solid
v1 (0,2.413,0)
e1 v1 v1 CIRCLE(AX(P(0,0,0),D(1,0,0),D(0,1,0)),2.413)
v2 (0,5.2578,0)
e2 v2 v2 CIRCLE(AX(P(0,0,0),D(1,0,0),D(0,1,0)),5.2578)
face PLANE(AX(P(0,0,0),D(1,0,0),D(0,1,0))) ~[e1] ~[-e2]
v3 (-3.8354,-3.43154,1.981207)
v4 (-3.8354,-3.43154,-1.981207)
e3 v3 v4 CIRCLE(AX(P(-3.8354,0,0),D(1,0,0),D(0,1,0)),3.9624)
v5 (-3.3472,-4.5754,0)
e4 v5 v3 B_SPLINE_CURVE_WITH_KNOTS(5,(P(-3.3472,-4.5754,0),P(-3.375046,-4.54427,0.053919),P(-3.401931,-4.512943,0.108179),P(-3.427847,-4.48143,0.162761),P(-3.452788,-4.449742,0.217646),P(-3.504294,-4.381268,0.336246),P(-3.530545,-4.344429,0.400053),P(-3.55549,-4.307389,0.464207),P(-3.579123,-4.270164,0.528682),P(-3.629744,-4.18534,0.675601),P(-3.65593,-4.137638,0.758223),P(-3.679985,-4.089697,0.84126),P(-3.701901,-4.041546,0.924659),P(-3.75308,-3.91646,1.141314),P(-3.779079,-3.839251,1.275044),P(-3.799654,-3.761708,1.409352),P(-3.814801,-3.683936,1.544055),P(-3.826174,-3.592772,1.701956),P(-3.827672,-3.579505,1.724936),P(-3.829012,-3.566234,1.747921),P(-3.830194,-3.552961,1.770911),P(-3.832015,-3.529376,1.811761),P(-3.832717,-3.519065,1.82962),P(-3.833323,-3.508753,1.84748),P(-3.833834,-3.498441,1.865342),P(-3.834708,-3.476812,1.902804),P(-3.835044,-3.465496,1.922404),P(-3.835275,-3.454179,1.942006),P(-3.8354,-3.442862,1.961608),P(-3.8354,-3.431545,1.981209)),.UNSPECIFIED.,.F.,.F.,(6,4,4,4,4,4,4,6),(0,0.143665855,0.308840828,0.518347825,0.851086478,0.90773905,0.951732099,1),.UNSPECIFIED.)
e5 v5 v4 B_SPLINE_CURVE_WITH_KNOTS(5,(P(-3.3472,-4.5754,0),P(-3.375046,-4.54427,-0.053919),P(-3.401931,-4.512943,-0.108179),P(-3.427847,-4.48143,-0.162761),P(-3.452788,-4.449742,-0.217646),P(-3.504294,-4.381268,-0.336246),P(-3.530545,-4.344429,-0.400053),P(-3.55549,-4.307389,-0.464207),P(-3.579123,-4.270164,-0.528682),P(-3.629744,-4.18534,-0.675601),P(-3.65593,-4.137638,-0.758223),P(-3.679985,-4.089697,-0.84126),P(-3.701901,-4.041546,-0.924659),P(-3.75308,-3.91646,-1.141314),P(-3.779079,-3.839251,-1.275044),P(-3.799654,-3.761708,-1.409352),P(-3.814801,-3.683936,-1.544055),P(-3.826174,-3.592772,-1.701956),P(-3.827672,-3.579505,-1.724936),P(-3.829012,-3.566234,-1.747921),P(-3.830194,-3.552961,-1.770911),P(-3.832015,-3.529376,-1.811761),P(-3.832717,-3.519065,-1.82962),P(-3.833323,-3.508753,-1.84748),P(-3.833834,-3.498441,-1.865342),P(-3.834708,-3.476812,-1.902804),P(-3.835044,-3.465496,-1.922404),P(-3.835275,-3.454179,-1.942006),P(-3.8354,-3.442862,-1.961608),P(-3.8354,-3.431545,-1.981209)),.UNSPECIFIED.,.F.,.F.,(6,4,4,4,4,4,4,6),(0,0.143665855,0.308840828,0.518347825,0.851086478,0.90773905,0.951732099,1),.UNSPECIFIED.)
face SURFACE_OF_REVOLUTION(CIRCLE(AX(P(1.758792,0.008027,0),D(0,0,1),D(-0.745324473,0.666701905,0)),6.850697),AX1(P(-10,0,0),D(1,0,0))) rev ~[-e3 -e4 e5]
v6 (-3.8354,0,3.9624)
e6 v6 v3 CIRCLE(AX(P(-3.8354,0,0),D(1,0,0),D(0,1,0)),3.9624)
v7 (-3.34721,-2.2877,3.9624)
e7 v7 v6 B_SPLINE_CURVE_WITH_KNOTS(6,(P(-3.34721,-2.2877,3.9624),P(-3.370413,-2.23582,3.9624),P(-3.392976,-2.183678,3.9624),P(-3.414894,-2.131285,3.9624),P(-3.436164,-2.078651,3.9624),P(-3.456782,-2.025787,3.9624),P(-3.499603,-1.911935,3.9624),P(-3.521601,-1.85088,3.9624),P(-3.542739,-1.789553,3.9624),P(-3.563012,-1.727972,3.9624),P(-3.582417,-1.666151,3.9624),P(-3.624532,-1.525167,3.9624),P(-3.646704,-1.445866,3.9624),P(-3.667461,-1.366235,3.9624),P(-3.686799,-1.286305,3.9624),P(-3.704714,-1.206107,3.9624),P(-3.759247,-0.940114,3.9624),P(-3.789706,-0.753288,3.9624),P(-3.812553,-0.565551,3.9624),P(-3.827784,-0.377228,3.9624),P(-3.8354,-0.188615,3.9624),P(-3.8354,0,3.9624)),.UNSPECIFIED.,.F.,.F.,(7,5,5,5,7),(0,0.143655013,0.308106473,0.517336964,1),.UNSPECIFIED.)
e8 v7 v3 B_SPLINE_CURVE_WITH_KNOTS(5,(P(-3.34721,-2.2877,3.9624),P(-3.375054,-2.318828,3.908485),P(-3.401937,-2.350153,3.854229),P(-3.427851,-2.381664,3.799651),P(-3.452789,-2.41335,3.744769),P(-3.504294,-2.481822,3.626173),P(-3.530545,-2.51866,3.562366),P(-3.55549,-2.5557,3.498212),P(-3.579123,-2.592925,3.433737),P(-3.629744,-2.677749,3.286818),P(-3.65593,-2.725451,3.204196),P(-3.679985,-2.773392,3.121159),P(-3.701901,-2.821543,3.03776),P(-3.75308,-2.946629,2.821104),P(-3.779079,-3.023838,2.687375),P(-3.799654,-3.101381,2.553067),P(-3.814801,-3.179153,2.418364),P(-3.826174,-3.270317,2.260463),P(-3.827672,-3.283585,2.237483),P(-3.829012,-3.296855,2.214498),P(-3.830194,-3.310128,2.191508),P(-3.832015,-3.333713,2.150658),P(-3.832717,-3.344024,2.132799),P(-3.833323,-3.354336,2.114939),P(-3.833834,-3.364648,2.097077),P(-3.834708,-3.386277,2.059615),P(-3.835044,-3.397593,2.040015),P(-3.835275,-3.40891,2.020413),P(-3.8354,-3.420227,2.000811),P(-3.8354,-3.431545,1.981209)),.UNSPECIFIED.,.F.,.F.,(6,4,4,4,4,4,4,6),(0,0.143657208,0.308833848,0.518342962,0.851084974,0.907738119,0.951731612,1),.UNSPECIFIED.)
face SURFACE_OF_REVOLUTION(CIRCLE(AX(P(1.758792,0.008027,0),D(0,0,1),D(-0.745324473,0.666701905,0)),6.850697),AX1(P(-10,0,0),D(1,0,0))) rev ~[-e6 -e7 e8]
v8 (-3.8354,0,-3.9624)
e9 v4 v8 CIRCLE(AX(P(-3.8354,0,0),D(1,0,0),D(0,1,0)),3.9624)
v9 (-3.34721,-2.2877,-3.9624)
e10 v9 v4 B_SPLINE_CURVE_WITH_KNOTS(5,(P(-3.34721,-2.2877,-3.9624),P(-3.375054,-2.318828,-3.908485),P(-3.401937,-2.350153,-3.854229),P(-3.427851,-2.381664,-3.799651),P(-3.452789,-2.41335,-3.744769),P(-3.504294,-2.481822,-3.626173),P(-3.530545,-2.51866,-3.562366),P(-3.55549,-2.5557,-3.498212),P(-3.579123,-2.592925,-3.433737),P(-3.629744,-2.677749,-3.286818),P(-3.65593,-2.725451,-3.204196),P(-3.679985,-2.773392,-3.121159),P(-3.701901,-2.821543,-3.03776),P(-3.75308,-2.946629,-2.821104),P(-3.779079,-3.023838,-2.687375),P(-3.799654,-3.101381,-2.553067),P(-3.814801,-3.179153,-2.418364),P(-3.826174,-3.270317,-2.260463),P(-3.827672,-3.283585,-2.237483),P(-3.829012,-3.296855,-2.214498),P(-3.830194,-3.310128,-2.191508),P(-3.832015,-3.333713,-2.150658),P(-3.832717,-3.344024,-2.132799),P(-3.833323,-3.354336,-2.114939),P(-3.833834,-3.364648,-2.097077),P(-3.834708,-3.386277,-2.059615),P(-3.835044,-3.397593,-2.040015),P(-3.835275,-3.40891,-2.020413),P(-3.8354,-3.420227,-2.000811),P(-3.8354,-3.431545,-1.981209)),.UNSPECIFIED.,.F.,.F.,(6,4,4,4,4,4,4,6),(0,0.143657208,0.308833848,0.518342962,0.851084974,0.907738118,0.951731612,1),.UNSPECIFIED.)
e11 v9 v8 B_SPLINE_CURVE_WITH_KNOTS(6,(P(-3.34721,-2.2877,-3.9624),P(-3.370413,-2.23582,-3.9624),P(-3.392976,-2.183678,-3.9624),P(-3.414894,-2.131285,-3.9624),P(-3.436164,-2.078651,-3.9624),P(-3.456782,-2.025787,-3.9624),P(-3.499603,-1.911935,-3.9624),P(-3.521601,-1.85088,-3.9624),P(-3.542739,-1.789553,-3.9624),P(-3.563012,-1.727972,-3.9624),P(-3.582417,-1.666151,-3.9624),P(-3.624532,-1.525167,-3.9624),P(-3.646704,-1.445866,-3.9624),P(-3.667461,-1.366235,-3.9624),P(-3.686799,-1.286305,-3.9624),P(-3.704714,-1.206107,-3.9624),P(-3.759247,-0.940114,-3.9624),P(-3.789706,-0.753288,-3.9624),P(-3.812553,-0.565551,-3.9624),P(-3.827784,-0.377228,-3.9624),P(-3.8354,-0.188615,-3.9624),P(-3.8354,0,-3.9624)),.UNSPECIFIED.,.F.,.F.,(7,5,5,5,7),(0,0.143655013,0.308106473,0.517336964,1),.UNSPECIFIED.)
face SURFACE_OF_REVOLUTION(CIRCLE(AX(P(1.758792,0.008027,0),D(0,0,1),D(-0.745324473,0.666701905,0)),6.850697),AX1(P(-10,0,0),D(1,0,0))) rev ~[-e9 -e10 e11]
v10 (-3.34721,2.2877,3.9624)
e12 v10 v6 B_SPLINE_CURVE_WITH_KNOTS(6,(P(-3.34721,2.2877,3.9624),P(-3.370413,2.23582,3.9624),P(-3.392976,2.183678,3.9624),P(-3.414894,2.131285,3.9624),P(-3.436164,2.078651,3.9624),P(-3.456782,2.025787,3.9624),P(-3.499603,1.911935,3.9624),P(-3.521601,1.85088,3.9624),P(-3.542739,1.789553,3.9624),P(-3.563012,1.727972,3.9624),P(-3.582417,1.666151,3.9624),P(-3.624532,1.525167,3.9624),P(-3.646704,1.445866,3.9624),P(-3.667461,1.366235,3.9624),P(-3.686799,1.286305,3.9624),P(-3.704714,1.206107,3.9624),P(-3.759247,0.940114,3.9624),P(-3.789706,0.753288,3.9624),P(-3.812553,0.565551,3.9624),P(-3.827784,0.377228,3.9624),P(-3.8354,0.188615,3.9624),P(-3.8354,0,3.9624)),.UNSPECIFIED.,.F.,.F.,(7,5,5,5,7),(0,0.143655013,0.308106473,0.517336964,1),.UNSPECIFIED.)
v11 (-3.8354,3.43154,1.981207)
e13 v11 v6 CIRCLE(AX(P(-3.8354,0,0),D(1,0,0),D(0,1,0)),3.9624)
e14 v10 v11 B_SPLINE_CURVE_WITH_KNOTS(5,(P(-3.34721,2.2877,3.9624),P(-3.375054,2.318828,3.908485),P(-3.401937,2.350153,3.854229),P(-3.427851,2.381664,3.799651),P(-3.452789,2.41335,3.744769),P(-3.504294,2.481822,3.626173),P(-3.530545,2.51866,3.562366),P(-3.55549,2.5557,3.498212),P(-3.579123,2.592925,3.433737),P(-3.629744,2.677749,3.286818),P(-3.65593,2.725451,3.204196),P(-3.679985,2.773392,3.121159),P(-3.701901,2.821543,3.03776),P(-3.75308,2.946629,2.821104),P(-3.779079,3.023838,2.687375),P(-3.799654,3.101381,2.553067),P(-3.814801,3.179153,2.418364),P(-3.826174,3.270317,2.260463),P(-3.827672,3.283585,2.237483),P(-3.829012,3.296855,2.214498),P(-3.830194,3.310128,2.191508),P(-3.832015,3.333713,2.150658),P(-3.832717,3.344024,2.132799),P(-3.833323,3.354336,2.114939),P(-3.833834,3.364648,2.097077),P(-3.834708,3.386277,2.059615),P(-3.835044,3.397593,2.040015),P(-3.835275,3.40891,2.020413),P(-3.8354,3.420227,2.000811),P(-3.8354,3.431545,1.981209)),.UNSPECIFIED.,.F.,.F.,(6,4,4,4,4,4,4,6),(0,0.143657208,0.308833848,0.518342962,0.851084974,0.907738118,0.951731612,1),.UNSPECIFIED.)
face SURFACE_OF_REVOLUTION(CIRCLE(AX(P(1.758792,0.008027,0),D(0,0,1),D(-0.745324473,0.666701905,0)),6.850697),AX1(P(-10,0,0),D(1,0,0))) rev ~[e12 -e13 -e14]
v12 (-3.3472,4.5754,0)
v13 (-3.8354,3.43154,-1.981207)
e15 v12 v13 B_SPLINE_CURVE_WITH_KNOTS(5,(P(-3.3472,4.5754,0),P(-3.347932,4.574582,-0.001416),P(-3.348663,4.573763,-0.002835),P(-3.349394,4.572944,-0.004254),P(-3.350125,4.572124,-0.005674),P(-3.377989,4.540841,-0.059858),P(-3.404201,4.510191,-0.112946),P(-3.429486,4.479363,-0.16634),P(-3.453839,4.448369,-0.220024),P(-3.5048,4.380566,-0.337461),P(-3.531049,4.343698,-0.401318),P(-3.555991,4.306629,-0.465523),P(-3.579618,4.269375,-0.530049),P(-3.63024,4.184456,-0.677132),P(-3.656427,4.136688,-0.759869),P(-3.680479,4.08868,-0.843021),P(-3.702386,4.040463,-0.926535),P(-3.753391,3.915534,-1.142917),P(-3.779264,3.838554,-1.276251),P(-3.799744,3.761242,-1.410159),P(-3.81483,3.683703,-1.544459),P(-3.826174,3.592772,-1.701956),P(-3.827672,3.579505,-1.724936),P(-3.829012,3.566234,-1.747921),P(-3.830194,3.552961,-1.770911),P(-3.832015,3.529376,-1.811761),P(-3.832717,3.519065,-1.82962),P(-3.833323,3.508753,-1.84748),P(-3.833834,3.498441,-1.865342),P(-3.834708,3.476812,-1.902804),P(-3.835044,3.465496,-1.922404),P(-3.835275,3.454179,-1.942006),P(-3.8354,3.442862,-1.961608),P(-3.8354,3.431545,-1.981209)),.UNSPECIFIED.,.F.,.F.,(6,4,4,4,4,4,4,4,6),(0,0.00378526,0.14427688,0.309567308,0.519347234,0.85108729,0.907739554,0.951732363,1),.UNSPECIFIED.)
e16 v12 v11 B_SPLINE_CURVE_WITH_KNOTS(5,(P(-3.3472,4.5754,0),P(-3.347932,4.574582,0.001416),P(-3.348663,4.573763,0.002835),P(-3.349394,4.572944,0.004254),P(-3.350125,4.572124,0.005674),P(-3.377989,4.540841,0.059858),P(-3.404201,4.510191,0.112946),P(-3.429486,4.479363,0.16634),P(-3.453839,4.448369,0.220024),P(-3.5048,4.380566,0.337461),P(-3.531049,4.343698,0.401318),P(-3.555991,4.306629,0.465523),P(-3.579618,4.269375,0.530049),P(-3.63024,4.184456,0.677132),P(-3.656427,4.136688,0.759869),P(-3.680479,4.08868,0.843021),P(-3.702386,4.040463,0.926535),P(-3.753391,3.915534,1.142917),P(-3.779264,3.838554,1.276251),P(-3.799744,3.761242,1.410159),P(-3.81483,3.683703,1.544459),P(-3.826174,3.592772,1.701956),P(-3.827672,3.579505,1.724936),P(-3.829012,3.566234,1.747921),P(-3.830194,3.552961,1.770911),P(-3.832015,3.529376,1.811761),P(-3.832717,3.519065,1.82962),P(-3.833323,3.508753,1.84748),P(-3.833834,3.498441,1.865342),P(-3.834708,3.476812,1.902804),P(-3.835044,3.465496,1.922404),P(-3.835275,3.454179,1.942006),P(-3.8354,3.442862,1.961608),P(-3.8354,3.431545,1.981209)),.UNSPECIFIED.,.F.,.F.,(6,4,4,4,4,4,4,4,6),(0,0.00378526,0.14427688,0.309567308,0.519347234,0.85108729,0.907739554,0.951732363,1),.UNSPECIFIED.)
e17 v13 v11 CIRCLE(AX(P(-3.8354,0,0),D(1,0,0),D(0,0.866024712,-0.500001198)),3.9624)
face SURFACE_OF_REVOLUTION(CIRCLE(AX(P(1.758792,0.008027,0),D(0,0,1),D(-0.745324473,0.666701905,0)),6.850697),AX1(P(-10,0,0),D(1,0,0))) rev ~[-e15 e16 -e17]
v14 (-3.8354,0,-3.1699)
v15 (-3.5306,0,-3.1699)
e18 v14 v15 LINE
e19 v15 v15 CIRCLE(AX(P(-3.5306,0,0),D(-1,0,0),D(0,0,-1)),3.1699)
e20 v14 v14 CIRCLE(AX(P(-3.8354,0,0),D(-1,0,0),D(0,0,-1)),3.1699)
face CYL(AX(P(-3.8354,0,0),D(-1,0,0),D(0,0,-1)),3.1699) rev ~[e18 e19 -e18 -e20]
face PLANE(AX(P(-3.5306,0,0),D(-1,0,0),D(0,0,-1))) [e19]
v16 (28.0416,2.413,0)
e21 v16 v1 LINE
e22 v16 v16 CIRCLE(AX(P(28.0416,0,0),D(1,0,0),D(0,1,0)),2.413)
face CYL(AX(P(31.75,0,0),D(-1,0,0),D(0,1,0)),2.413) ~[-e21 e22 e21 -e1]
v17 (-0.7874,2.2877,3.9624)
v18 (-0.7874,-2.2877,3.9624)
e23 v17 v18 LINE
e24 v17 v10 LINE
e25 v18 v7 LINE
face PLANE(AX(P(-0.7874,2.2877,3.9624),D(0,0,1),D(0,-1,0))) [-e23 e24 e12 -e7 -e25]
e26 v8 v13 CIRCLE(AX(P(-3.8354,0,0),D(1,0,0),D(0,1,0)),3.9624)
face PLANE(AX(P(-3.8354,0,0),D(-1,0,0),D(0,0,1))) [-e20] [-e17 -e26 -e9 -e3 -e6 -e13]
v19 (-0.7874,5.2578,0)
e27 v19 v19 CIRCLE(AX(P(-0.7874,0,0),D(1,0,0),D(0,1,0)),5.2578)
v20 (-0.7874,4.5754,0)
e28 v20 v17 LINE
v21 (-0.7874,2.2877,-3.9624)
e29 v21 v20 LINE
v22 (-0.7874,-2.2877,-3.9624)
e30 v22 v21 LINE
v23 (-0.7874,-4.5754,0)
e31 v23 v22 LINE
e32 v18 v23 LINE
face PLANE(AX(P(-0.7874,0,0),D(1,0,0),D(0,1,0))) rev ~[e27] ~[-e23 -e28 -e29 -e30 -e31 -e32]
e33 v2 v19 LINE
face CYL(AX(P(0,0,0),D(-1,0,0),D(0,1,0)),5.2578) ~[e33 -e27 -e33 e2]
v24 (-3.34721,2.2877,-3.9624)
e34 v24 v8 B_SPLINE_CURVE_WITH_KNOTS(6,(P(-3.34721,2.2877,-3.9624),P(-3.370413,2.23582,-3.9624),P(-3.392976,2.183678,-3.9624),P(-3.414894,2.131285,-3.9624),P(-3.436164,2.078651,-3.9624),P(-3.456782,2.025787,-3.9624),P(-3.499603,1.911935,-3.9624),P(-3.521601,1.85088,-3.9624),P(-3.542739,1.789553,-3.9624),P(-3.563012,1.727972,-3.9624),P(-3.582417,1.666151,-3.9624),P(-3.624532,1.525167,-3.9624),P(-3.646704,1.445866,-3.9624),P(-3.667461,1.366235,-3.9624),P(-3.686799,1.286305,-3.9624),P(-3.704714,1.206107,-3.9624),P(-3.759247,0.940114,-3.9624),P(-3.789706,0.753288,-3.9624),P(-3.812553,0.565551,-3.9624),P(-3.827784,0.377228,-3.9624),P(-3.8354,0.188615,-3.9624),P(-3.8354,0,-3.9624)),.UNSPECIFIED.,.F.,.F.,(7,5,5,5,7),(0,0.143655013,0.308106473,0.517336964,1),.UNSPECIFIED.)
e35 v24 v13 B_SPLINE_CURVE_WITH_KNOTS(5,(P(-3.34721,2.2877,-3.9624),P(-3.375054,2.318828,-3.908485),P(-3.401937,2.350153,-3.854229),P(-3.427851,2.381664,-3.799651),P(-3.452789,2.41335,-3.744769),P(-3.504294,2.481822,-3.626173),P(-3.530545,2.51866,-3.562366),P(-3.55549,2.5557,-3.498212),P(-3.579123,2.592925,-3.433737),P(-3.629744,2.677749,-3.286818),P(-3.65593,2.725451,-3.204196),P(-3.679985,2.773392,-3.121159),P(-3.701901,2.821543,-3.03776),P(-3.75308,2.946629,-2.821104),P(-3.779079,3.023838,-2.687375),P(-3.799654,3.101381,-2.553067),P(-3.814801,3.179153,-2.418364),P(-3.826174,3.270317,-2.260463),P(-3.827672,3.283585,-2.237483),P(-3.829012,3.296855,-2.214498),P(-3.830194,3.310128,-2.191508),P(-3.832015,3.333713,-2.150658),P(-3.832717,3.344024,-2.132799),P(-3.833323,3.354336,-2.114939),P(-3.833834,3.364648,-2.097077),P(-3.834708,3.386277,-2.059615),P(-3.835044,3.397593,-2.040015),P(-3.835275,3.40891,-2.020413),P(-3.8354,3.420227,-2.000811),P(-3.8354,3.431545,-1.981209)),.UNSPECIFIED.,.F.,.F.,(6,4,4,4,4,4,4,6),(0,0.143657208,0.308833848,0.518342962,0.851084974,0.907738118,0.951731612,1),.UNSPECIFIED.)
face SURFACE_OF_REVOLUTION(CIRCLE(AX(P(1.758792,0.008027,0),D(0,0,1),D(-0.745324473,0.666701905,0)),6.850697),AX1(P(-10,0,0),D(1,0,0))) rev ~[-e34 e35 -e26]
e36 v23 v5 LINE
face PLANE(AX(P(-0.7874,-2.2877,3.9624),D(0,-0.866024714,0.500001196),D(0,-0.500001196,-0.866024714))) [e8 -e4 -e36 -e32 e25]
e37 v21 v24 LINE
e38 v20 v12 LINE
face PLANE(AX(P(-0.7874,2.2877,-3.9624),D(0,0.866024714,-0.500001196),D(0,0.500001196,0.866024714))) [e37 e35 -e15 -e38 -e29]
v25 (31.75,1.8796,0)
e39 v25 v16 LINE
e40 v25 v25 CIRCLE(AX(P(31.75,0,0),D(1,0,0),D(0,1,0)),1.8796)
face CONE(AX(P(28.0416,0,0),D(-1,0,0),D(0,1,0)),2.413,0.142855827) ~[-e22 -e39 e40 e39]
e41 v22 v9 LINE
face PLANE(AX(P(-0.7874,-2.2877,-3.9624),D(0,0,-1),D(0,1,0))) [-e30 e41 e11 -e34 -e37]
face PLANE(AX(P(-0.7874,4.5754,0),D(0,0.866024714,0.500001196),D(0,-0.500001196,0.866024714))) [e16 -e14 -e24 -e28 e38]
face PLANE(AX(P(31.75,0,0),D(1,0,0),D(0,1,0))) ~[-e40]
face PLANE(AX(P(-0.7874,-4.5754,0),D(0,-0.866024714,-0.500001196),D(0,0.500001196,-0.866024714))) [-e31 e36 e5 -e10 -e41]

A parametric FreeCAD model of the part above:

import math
import FreeCAD as App
import Part
import Sketcher
from FreeCAD import Vector
Q = App.Units.Quantity


def edges_at(feature, points):
    """Names of the edges that pass closest to the given points."""
    edges = feature.Shape.Edges
    near = lambda p: min(range(len(edges)), key=lambda i: edges[i].distToShape(Part.Vertex(*p))[0])
    return sorted({f"Edge{near(p) + 1}" for p in points})


def add_polygon(sketch, points):
    """Adds a closed chain of lines whose ends are joined by coincident constraints."""
    first, n = sketch.GeometryCount, len(points)
    for a, b in zip(points, points[1:] + points[:1]):
        sketch.addGeometry(Part.LineSegment(App.Vector(*a, 0), App.Vector(*b, 0)), False)
    for i in range(n):
        sketch.addConstraint(Sketcher.Constraint("Coincident", first + i, 2, first + (i + 1) % n, 1))

doc = App.newDocument("Part")
body = doc.addObject("PartDesign::Body", "Body")

# Sketch on XY plane
sketch1 = body.newObject("Sketcher::SketchObject", "Sketch")
sketch1.AttachmentSupport = (doc.getObject("XY_Plane"), [""])
sketch1.MapMode = "FlatFace"
add_polygon(sketch1, [(0, 5.3), (-0.8, 5.3), (-0.8, 0), (31.8, 0), (31.8, 2.4), (0, 2.4)])  # lines 0-5
sketch1.addConstraint([
    Sketcher.Constraint("Horizontal", 0),
    Sketcher.Constraint("Vertical", 1),
    Sketcher.Constraint("Horizontal", 2),
    Sketcher.Constraint("Vertical", 3),
    Sketcher.Constraint("Horizontal", 4),
    Sketcher.Constraint("Vertical", 5),
    Sketcher.Constraint("PointOnObject", 1, 2, -1),
    Sketcher.Constraint("PointOnObject", 4, 2, -2),
    Sketcher.Constraint("DistanceX", 4, 2, 4, 1, Q("1.25 in")),
    Sketcher.Constraint("DistanceX", 0, 2, 0, 1, Q("0.031 in")),
    Sketcher.Constraint("DistanceY", 1, 2, 1, 1, Q("0.207 in")),
    Sketcher.Constraint("DistanceY", 3, 1, 3, 2, Q("0.095 in")),
])
revolution = body.newObject("PartDesign::Revolution", "Revolution")
revolution.Profile = sketch1
revolution.ReferenceAxis = (sketch1, ["H_Axis"])
revolution.Angle = 360

# Sketch on YZ plane
sketch2 = body.newObject("Sketcher::SketchObject", "Sketch001")
sketch2.AttachmentSupport = (doc.getObject("YZ_Plane"), [""])
sketch2.MapMode = "FlatFace"
sketch2.AttachmentOffset = App.Placement(Vector(0, 0, -0.031 * 25.4), App.Rotation())
add_polygon(sketch2, [(2.3, 4), (4.6, 0), (2.3, -4), (-2.3, -4), (-4.6, 0), (-2.3, 4)])  # lines 0-5
sketch2.addConstraint([
    Sketcher.Constraint("Horizontal", 2),
    Sketcher.Constraint("Horizontal", 5),
    Sketcher.Constraint("Symmetric", 0, 2, 3, 2, -1, 1),
    Sketcher.Constraint("Symmetric", 1, 2, 4, 2, -1, 1),
    Sketcher.Constraint("PointOnObject", 0, 2, -1),
    Sketcher.Constraint("Parallel", 0, 3),
    Sketcher.Constraint("Vertical", 2, 2, 4, 2),
    Sketcher.Constraint("Angle", 0, Q("-60 deg")),
    Sketcher.Constraint("DistanceY", 2, 2, 4, 2, Q("0.312 in")),
    Sketcher.Constraint("DistanceX", 2, 2, 2, 1, 4.5754),
])
pad1 = body.newObject("PartDesign::Pad", "Pad")
pad1.Profile = sketch2
pad1.Length = Q("0.12 in")
pad1.Reversed = True

# Sketch on YZ plane
sketch3 = body.newObject("Sketcher::SketchObject", "Sketch002")
sketch3.AttachmentSupport = (doc.getObject("YZ_Plane"), [""])
sketch3.MapMode = "FlatFace"
sketch3.AttachmentOffset = App.Placement(Vector(0, 0, -0.151 * 25.4), App.Rotation())
sketch3.addGeometry(Part.Circle(Vector(0, 0, 0), Vector(0, 0, 1), 3.2), False)
sketch3.addConstraint([
    Sketcher.Constraint("Coincident", 0, 3, -1, 1),
    Sketcher.Constraint("Diameter", 0, Q("0.2496 in")),
])
pocket1 = body.newObject("PartDesign::Pocket", "Pocket")
pocket1.Profile = sketch3
pocket1.Length = Q("0.012 in")
pocket1.Reversed = True

# Sketch on XY plane
sketch4 = body.newObject("Sketcher::SketchObject", "Sketch003")
sketch4.AttachmentSupport = (doc.getObject("XY_Plane"), [""])
sketch4.MapMode = "FlatFace"
sketch4.addGeometry([
    Part.LineSegment(Vector(-3.84, 4.58, 0), Vector(-3.84, 3.96, 0)),
    Part.ArcOfCircle(Part.Circle(Vector(1.76, 0.01, 0), Vector(0, 0, 1), 6.85), math.radians(138.19), math.radians(144.74)),
    Part.LineSegment(Vector(-3.35, 4.58, 0), Vector(-3.84, 4.58, 0)),
], False)
sketch4.addConstraint([
    Sketcher.Constraint("Coincident", 0, 2, 1, 2),
    Sketcher.Constraint("Coincident", 1, 1, 2, 1),
    Sketcher.Constraint("Coincident", 2, 2, 0, 1),
    Sketcher.Constraint("Vertical", 0),
    Sketcher.Constraint("Horizontal", 2),
    Sketcher.Constraint("Radius", 1, 6.8507),
    Sketcher.Constraint("DistanceX", 0, 2, -1, 1, Q("0.151 in")),
    Sketcher.Constraint("DistanceY", -1, 1, 0, 2, Q("0.156 in")),
    Sketcher.Constraint("DistanceX", 2, 2, 2, 1, 0.4882),
    Sketcher.Constraint("DistanceY", 0, 2, 0, 1, 0.613),
])
groove = body.newObject("PartDesign::Groove", "Groove")
groove.Profile = sketch4
groove.ReferenceAxis = (sketch4, ["H_Axis"])
groove.Angle = 360
doc.recompute()

chamfer = body.newObject("PartDesign::Chamfer", "Chamfer")
chamfer.Base = (groove, edges_at(groove, [(31.75, -2.413, 0)]))
chamfer.ChamferType = "Two distances"
chamfer.Size = Q("0.021 in")
chamfer.Size2 = Q("0.146 in")
chamfer.FlipDirection = True

doc.recompute()
